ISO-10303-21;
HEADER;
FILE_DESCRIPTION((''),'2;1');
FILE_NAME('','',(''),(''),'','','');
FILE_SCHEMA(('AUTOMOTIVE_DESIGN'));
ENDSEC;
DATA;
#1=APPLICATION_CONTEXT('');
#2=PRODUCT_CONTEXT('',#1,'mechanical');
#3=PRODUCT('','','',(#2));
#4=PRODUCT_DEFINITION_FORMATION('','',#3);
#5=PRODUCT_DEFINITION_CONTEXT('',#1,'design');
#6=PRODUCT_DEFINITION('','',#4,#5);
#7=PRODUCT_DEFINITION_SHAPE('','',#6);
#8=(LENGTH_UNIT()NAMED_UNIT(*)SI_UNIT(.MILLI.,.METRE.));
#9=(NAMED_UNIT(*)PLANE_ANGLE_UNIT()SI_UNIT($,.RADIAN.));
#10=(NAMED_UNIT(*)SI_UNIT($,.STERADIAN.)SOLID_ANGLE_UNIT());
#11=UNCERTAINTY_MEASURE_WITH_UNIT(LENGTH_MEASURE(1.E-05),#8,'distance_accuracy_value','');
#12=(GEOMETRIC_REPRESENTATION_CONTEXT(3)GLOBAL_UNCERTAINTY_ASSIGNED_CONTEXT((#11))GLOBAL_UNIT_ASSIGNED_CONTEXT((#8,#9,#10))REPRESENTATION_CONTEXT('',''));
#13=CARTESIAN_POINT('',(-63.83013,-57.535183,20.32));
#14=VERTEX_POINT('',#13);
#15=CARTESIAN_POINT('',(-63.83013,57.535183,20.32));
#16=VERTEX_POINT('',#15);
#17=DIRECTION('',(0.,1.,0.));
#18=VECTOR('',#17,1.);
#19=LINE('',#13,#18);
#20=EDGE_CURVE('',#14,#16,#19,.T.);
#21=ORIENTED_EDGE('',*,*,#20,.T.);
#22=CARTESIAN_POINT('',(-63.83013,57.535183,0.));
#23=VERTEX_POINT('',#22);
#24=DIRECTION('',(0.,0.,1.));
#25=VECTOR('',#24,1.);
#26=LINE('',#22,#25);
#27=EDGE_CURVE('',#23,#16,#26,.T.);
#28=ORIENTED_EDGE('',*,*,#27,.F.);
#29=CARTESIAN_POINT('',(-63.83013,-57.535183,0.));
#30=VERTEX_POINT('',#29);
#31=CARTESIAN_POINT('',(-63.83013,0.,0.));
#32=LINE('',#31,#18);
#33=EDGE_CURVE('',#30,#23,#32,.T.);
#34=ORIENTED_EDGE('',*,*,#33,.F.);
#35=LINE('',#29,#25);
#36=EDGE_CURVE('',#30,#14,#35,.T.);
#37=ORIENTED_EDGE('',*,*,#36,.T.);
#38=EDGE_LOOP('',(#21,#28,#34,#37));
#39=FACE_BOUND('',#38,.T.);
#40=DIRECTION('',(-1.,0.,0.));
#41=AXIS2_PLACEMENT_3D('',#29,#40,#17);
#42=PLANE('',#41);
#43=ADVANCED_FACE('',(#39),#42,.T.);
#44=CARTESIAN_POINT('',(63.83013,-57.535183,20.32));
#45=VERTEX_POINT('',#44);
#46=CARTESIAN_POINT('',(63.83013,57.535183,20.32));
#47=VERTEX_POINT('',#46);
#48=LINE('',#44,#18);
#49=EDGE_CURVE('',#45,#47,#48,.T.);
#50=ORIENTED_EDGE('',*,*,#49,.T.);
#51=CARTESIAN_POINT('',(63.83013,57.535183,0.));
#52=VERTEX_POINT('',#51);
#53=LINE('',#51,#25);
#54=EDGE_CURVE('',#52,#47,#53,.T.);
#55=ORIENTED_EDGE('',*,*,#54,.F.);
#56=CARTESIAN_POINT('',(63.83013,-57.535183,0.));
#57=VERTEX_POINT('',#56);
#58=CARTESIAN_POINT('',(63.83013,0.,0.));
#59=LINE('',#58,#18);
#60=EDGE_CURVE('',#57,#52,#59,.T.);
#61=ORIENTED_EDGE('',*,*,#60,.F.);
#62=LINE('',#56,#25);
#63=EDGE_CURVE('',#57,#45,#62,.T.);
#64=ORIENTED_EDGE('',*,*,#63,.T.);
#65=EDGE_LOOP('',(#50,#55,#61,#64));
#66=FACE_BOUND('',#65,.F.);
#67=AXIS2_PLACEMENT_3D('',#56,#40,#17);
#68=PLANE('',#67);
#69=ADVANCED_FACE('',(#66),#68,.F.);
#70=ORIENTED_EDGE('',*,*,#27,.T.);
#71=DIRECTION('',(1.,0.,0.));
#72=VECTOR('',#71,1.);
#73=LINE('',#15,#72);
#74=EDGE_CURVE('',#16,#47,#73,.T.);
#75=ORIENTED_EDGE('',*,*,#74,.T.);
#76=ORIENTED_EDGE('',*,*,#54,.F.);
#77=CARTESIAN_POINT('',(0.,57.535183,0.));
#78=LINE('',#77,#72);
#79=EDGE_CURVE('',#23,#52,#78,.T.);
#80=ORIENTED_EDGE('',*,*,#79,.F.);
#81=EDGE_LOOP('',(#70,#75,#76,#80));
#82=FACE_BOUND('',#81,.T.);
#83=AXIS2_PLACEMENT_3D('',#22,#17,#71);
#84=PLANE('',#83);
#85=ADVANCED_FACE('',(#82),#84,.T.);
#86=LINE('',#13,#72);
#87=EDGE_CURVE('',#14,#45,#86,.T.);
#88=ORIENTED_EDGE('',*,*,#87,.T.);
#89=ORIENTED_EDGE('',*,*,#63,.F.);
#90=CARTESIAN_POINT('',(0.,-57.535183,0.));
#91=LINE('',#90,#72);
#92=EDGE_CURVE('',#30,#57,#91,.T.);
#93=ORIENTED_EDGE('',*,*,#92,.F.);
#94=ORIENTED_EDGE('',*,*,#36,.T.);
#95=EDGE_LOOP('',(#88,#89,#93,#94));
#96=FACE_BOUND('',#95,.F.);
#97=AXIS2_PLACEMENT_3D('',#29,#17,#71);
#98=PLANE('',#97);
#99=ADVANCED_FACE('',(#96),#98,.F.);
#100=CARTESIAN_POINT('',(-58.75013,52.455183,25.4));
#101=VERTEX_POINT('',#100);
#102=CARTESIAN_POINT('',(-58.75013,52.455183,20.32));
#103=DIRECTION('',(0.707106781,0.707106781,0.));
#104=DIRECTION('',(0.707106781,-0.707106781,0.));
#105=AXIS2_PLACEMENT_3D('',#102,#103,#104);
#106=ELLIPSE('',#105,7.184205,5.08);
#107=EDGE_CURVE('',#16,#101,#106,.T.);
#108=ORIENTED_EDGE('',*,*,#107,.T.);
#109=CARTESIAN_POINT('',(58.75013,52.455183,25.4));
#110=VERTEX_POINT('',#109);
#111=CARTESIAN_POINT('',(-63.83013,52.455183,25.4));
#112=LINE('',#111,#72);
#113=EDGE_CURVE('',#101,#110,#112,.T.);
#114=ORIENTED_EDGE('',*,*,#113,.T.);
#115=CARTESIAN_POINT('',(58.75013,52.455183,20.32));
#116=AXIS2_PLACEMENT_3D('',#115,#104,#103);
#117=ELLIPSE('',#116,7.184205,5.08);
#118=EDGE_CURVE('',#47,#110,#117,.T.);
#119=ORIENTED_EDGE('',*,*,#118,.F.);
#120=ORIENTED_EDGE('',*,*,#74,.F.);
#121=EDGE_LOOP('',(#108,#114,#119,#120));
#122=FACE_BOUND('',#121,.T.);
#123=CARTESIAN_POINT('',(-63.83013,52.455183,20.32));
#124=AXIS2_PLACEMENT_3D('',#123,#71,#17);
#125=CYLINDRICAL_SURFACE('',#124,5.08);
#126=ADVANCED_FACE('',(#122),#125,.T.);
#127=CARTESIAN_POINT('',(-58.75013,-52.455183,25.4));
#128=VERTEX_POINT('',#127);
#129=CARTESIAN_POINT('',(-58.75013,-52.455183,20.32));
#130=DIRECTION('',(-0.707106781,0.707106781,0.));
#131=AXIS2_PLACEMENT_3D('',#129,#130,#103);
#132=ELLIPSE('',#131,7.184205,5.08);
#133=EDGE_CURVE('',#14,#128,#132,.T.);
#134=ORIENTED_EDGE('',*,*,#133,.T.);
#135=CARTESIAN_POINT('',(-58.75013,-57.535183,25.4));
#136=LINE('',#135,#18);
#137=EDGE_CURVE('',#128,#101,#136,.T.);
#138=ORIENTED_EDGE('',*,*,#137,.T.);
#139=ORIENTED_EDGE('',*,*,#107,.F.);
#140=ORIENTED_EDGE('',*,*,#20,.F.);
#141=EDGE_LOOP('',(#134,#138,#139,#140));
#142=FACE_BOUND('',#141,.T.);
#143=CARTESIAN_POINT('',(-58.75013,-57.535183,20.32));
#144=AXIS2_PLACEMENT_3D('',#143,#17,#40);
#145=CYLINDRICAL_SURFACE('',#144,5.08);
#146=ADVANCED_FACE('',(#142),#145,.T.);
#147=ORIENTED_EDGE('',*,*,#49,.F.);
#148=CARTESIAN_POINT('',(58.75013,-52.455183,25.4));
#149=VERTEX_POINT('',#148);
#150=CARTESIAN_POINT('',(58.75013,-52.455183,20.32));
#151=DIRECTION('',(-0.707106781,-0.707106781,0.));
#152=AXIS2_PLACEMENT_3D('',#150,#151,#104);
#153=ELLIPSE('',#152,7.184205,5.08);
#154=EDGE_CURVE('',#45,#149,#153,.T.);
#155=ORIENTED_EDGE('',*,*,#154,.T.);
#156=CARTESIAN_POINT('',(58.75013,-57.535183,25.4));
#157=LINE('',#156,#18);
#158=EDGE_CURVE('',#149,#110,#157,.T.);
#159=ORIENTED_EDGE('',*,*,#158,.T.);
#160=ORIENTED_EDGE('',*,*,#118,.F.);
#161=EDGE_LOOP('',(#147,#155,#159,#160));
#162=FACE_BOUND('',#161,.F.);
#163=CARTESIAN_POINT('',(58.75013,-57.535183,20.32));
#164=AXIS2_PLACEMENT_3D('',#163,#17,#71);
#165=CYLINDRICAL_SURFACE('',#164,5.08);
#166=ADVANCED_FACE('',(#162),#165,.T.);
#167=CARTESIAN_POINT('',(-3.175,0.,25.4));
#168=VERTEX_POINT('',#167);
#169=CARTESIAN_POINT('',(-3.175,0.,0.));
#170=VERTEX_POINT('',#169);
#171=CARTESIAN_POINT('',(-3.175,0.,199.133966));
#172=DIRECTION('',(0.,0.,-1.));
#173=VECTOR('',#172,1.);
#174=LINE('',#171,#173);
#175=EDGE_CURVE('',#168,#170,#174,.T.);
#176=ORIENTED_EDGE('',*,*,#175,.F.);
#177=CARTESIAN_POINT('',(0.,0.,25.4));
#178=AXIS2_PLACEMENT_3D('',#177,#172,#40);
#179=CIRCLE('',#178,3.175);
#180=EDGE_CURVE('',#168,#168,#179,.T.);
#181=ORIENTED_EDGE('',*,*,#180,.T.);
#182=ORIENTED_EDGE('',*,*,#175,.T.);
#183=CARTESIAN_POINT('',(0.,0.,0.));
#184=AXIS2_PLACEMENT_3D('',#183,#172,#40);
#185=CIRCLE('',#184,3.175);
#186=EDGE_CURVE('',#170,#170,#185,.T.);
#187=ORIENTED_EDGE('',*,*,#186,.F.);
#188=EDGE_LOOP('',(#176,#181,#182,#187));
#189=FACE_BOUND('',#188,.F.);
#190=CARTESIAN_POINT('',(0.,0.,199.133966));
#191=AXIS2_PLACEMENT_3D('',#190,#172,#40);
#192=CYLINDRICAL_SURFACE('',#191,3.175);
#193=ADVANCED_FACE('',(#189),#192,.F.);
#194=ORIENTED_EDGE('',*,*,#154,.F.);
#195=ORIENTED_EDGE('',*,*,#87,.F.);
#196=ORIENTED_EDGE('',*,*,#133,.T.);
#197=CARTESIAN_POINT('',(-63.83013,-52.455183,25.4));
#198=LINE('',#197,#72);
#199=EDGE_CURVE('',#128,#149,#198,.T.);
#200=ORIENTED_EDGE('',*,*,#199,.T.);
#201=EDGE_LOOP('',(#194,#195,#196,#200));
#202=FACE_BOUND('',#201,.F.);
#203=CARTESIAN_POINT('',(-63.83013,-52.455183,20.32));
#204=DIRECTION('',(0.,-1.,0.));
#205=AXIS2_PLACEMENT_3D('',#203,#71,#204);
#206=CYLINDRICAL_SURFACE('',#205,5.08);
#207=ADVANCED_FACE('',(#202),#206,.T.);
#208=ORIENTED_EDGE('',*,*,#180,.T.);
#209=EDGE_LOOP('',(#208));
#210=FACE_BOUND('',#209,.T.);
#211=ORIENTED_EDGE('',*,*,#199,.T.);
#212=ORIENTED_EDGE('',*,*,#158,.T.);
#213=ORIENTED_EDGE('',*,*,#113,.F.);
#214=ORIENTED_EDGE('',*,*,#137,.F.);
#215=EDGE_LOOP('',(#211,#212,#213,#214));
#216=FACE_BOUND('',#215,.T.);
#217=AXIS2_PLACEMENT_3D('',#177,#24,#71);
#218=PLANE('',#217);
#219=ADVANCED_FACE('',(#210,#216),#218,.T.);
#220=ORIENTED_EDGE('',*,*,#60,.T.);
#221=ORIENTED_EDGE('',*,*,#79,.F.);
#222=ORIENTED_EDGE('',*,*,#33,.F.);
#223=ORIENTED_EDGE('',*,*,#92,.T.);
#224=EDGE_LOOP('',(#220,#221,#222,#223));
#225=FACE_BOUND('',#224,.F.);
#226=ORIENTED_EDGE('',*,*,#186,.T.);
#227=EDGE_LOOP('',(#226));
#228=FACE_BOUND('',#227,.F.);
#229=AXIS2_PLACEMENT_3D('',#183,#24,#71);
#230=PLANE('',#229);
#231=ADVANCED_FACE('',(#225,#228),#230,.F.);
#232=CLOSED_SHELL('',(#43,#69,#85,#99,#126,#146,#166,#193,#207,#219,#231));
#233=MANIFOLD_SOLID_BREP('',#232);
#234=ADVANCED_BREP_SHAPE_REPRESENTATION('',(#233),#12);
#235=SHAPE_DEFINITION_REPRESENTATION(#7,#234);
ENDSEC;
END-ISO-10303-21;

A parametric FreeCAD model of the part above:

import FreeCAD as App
import Part
import Sketcher
from FreeCAD import Vector
Q = App.Units.Quantity


def edges_at(feature, points):
    """Names of the edges that pass closest to the given points."""
    edges = feature.Shape.Edges
    near = lambda p: min(range(len(edges)), key=lambda i: edges[i].distToShape(Part.Vertex(*p))[0])
    return sorted({f"Edge{near(p) + 1}" for p in points})

doc = App.newDocument("Part")
body = doc.addObject("PartDesign::Body", "Body")

sketch1 = body.newObject("Sketcher::SketchObject", "Sketch")
sketch1.AttachmentSupport = (doc.getObject("XY_Plane"), [""])
sketch1.MapMode = "FlatFace"
sketch1.addGeometry([
    Part.LineSegment(Vector(-64, 58, 0), Vector(-64, -58, 0)),
    Part.LineSegment(Vector(-64, -58, 0), Vector(64, -58, 0)),
    Part.LineSegment(Vector(64, -58, 0), Vector(64, 58, 0)),
    Part.LineSegment(Vector(64, 58, 0), Vector(-64, 58, 0)),
], False)
sketch1.addConstraint([
    Sketcher.Constraint("Coincident", 0, 2, 1, 1),
    Sketcher.Constraint("Coincident", 1, 2, 2, 1),
    Sketcher.Constraint("Coincident", 2, 2, 3, 1),
    Sketcher.Constraint("Coincident", 3, 2, 0, 1),
    Sketcher.Constraint("Vertical", 0),
    Sketcher.Constraint("Horizontal", 1),
    Sketcher.Constraint("Vertical", 2),
    Sketcher.Constraint("Horizontal", 3),
    Sketcher.Constraint("Symmetric", 0, 2, 2, 2, -1, 1),
    Sketcher.Constraint("DistanceX", 1, 1, 1, 2, 127.66026),
    Sketcher.Constraint("DistanceY", 0, 2, 0, 1, 115.070366),
])
pad1 = body.newObject("PartDesign::Pad", "Pad")
pad1.Profile = sketch1
pad1.Length = Q("1 in")
doc.recompute()

fillet = body.newObject("PartDesign::Fillet", "Fillet")
fillet.Base = (pad1, edges_at(pad1, [
    (0, -57.535, 25.4),
    (63.83, 0, 25.4),
    (0, 57.535, 25.4),
    (-63.83, 0, 25.4),
]))
fillet.Radius = Q("0.2 in")

sketch2 = body.newObject("Sketcher::SketchObject", "Sketch001")
sketch2.AttachmentSupport = (doc.getObject("XY_Plane"), [""])
sketch2.MapMode = "FlatFace"
sketch2.AttachmentOffset = App.Placement(Vector(0, 0, 1 * 25.4), App.Rotation())
sketch2.addGeometry(Part.Circle(Vector(0, 0, 0), Vector(0, 0, 1), 3.2), False)
sketch2.addConstraint([
    Sketcher.Constraint("Coincident", 0, 3, -1, 1),
    Sketcher.Constraint("Diameter", 0, Q("0.25 in")),
])
doc.recompute()
hole = body.newObject("PartDesign::Hole", "Hole")
hole.Profile = sketch2
hole.ThreadType = "None"
hole.Diameter = Q("0.25 in")
hole.DepthType = "ThroughAll"

doc.recompute()
